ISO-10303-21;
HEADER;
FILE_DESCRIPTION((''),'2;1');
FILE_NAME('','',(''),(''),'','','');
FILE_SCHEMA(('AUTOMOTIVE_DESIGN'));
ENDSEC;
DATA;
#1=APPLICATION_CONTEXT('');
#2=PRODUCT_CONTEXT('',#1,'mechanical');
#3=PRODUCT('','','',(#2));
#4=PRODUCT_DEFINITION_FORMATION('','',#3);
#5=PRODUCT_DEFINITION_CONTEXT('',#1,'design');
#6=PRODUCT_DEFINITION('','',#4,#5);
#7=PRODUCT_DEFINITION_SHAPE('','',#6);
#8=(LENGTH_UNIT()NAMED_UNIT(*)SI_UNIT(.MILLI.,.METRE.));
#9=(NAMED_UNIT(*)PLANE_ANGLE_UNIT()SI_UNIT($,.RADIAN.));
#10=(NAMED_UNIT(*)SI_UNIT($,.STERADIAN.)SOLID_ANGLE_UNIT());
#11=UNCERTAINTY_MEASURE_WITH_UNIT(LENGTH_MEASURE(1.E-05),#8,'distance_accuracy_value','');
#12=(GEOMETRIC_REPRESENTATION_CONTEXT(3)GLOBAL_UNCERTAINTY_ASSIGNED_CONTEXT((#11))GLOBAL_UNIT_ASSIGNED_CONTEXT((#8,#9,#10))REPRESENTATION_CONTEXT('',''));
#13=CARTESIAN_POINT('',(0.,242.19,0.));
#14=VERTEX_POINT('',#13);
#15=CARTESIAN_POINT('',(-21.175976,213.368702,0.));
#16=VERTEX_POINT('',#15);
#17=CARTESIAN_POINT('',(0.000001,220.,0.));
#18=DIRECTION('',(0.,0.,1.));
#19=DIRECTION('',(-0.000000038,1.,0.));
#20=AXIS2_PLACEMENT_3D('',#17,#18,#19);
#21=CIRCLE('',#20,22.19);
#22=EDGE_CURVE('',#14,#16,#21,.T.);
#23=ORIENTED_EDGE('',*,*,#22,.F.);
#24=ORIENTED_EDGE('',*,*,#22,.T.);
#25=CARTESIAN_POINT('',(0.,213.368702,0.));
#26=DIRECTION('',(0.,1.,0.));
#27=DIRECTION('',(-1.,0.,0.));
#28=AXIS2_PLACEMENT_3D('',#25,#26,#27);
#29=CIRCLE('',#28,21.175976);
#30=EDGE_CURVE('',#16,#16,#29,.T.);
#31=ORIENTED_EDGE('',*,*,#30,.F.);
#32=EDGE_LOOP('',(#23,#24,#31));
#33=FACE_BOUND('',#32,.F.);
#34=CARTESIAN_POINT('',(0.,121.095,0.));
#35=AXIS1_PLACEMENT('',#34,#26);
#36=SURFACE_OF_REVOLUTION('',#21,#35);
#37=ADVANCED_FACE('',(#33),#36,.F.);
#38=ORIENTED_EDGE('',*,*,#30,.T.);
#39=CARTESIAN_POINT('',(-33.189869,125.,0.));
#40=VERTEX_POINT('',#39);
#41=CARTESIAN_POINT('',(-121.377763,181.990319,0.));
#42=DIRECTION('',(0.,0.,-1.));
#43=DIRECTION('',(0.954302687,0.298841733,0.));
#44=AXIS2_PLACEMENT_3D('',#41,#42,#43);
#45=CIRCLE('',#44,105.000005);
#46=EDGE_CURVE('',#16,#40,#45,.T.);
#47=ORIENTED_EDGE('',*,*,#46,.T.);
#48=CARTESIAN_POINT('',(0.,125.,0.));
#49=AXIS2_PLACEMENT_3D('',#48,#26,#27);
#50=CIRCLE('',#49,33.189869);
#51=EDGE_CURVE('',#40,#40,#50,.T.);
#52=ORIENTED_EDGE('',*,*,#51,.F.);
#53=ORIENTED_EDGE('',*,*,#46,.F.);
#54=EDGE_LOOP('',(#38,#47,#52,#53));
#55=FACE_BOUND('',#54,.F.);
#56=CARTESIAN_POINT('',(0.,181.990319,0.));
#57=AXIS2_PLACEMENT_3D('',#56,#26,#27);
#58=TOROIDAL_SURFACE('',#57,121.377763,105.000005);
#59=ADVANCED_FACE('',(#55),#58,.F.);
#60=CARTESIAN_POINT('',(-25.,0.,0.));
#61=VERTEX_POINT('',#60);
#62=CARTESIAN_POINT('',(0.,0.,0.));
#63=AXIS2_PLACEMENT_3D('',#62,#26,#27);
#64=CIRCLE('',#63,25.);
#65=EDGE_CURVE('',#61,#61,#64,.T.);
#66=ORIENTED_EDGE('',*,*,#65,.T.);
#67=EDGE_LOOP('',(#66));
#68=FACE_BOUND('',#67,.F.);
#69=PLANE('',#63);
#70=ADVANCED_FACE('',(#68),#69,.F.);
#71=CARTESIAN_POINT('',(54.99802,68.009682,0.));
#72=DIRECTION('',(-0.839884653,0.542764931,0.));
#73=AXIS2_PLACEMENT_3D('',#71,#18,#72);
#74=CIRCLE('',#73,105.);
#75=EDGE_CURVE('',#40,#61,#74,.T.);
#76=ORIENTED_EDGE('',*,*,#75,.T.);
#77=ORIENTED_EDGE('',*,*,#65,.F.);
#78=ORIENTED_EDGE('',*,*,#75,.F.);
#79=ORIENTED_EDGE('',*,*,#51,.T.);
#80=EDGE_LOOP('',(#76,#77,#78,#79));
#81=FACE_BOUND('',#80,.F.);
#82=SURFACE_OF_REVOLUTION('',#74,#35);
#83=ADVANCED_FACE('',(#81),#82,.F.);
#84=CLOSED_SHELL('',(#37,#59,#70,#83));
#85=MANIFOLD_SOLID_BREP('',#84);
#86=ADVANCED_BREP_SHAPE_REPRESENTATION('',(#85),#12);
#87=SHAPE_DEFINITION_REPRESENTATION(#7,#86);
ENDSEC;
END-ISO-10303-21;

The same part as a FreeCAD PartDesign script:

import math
import FreeCAD as App
import Part
import Sketcher
from FreeCAD import Vector
Q = App.Units.Quantity

doc = App.newDocument("Part")
body = doc.addObject("PartDesign::Body", "Body")

sketch1 = body.newObject("Sketcher::SketchObject", "Sketch")
sketch1.AttachmentSupport = (doc.getObject("XY_Plane"), [""])
sketch1.MapMode = "FlatFace"
sketch1.addGeometry([
    Part.LineSegment(Vector(0, 0, 0), Vector(0, 242.19, 0)),
    Part.ArcOfCircle(Part.Circle(Vector(0.000001, 220, 0), Vector(0, 0, 1), 22.19), math.radians(90.000002), math.radians(197.388048)),
    Part.ArcOfCircle(Part.Circle(Vector(-121.377763, 181.990319, 0), Vector(0, 0, 1), 105.000005), math.radians(-32.872058), math.radians(17.388048)),
    Part.ArcOfCircle(Part.Circle(Vector(54.99802, 68.009682, 0), Vector(0, 0, 1), 105), math.radians(147.127941), math.radians(220.369262)),
    Part.LineSegment(Vector(-25, 0, 0), Vector(0, 0, 0)),
], False)
sketch1.addConstraint([
    Sketcher.Constraint("Coincident", 0, 2, 1, 1),
    Sketcher.Constraint("Tangent", 1, 2, 2, 2),
    Sketcher.Constraint("Tangent", 2, 1, 3, 1),
    Sketcher.Constraint("Coincident", 3, 2, 4, 1),
    Sketcher.Constraint("Coincident", 4, 2, 0, 1),
    Sketcher.Constraint("Vertical", 0),
    Sketcher.Constraint("Horizontal", 4),
    Sketcher.Constraint("Coincident", 4, 2, -1, 1),
    Sketcher.Constraint("PointOnObject", 1, 3, -2),
    Sketcher.Constraint("Radius", 3, Q("105 mm")),
    Sketcher.Constraint("DistanceX", 4, 1, 4, 2, Q("25 mm")),
    Sketcher.Constraint("Radius", 1, Q("22.19 mm")),
    Sketcher.Constraint("DistanceY", -1, 1, 1, 3, Q("220 mm")),
    Sketcher.Constraint("DistanceY", -1, 1, 2, 1, Q("125 mm")),
    Sketcher.Constraint("Radius", 2, Q("105.000005 mm")),
])
revolution = body.newObject("PartDesign::Revolution", "Revolution")
revolution.Profile = sketch1
revolution.ReferenceAxis = (sketch1, ["V_Axis"])
revolution.Angle = 360

doc.recompute()
